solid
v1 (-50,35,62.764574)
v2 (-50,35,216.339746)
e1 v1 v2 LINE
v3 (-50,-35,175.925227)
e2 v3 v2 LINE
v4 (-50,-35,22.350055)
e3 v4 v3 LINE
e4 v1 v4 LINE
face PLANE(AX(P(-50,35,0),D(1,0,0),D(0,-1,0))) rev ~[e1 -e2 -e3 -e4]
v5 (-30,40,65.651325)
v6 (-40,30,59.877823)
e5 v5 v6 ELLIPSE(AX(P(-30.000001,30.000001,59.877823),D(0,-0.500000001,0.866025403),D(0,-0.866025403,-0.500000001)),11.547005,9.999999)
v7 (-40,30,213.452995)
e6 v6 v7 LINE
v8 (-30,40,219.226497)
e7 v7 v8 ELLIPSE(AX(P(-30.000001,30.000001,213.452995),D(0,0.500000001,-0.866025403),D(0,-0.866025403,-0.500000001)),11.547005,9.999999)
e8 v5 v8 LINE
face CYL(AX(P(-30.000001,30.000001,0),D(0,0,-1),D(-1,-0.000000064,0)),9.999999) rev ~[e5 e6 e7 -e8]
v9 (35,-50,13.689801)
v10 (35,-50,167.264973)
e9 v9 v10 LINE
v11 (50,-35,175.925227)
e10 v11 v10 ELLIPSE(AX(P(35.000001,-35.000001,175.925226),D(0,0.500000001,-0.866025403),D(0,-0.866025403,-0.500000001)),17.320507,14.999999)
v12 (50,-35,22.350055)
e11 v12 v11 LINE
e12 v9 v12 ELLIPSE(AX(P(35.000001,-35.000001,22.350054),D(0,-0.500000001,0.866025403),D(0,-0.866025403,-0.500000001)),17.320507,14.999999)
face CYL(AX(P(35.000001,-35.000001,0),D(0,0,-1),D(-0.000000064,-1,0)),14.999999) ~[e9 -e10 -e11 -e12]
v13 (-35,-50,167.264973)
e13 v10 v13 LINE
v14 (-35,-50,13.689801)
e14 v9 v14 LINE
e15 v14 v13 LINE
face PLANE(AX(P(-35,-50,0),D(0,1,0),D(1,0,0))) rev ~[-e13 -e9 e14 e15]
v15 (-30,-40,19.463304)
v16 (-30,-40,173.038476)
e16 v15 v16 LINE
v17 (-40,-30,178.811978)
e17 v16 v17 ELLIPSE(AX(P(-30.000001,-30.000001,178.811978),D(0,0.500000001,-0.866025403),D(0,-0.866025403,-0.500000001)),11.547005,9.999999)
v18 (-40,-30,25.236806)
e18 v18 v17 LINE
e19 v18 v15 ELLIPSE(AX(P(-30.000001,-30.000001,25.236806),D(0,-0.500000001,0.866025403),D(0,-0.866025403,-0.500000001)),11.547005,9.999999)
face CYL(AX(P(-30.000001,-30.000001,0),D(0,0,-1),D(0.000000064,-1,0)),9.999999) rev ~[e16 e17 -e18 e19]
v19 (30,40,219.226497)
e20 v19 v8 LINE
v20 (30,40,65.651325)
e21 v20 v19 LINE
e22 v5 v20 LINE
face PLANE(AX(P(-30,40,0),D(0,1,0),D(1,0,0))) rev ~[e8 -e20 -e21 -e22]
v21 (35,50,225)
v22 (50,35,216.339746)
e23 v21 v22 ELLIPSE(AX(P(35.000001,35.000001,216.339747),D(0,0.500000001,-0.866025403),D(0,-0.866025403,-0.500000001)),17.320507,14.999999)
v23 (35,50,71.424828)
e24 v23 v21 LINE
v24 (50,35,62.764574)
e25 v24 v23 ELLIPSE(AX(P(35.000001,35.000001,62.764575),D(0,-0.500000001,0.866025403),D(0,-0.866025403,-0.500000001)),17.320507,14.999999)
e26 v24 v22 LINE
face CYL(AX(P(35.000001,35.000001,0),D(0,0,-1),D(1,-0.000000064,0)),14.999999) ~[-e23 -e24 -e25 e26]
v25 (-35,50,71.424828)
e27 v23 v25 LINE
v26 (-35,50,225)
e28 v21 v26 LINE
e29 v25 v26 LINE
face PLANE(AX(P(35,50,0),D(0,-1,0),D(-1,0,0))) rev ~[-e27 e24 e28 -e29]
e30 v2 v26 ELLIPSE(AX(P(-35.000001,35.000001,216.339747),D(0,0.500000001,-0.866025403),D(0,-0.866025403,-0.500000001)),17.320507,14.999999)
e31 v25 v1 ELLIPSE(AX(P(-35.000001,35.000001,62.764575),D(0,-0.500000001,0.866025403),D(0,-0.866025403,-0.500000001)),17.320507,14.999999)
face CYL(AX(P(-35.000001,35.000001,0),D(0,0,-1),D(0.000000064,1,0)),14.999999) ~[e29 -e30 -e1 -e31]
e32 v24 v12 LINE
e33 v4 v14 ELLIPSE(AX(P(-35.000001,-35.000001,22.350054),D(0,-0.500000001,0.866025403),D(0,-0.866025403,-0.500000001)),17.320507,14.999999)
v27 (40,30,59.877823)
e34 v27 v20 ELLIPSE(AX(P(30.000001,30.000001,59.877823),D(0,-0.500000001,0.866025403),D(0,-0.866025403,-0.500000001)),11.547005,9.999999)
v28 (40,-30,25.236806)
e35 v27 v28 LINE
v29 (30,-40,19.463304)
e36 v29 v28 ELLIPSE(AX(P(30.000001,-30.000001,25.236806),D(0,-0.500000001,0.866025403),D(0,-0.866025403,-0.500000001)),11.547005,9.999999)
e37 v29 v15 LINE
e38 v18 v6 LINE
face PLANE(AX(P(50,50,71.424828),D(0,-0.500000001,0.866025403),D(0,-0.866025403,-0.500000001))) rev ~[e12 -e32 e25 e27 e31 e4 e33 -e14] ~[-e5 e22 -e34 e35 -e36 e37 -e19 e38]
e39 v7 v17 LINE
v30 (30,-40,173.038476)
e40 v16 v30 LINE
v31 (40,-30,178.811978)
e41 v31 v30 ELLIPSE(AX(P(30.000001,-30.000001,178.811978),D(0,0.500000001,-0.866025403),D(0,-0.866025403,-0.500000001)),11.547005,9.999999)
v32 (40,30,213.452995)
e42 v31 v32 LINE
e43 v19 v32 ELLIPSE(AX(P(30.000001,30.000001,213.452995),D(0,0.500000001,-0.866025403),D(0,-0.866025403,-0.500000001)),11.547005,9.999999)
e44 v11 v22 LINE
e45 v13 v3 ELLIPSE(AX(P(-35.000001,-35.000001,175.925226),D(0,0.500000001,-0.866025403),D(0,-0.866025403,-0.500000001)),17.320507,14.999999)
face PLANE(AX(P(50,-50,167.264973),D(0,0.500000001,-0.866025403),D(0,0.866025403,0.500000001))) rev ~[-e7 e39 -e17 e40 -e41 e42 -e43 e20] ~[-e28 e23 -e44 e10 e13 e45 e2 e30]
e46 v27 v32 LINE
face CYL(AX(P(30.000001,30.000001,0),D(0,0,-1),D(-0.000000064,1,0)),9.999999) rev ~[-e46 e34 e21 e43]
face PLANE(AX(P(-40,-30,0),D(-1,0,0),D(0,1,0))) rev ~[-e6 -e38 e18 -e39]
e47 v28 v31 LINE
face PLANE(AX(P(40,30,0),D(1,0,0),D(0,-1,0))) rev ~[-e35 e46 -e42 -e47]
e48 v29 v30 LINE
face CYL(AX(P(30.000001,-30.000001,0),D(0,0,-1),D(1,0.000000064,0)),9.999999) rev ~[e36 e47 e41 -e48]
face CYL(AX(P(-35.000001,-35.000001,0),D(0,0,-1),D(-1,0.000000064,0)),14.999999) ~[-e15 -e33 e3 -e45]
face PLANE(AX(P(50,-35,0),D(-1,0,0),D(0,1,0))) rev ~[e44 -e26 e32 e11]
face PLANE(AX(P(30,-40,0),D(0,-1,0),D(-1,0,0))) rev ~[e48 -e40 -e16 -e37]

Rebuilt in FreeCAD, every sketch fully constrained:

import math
import FreeCAD as App
import Part
import Sketcher

V = App.Vector
Q = App.Units.Quantity


def add_polygon(sketch, points):
    """Adds a closed chain of lines whose ends are joined by coincident constraints."""
    first, n = sketch.GeometryCount, len(points)
    for a, b in zip(points, points[1:] + points[:1]):
        sketch.addGeometry(Part.LineSegment(App.Vector(*a, 0), App.Vector(*b, 0)), False)
    for i in range(n):
        sketch.addConstraint(Sketcher.Constraint("Coincident", first + i, 2, first + (i + 1) % n, 1))

doc = App.newDocument("Part")
body = doc.addObject("PartDesign::Body", "Body")

sketch1 = doc.addObject("Sketcher::SketchObject", "Sketch")
body.addObject(sketch1)
sketch1.AttachmentSupport = (doc.XY_Plane, [""])
sketch1.MapMode = "FlatFace"
sketch1.addGeometry([
    Part.LineSegment(V(35, 50, 0), V(-35, 50, 0)),
    Part.ArcOfCircle(Part.Circle(V(-35, 35, 0), V(0, 0, 1), 15), math.radians(90), math.radians(180)),
    Part.LineSegment(V(-50, 35, 0), V(-50, -35, 0)),
    Part.ArcOfCircle(Part.Circle(V(-35, -35, 0), V(0, 0, 1), 15), math.radians(180), math.radians(270)),
    Part.LineSegment(V(-35, -50, 0), V(35, -50, 0)),
    Part.ArcOfCircle(Part.Circle(V(35, -35, 0), V(0, 0, 1), 15), math.radians(-90), math.radians(0)),
    Part.LineSegment(V(50, -35, 0), V(50, 35, 0)),
    Part.ArcOfCircle(Part.Circle(V(35, 35, 0), V(0, 0, 1), 15), math.radians(0), math.radians(90)),
    Part.LineSegment(V(-40, -30, 0), V(-40, 30, 0)),
    Part.ArcOfCircle(Part.Circle(V(-30, 30, 0), V(0, 0, 1), 10), math.radians(90), math.radians(180)),
    Part.LineSegment(V(-30, 40, 0), V(30, 40, 0)),
    Part.ArcOfCircle(Part.Circle(V(30, 30, 0), V(0, 0, 1), 10), math.radians(0), math.radians(90)),
    Part.LineSegment(V(40, 30, 0), V(40, -30, 0)),
    Part.ArcOfCircle(Part.Circle(V(30, -30, 0), V(0, 0, 1), 10), math.radians(-90), math.radians(0)),
    Part.LineSegment(V(30, -40, 0), V(-30, -40, 0)),
    Part.ArcOfCircle(Part.Circle(V(-30, -30, 0), V(0, 0, 1), 10), math.radians(180), math.radians(270)),
], False)
sketch1.addConstraint([
    Sketcher.Constraint("Tangent", 0, 2, 1, 1),
    Sketcher.Constraint("Tangent", 1, 2, 2, 1),
    Sketcher.Constraint("Tangent", 2, 2, 3, 1),
    Sketcher.Constraint("Tangent", 3, 2, 4, 1),
    Sketcher.Constraint("Tangent", 4, 2, 5, 1),
    Sketcher.Constraint("Tangent", 5, 2, 6, 1),
    Sketcher.Constraint("Tangent", 6, 2, 7, 1),
    Sketcher.Constraint("Tangent", 7, 2, 0, 1),
    Sketcher.Constraint("Tangent", 8, 2, 9, 2),
    Sketcher.Constraint("Tangent", 9, 1, 10, 1),
    Sketcher.Constraint("Tangent", 10, 2, 11, 2),
    Sketcher.Constraint("Tangent", 11, 1, 12, 1),
    Sketcher.Constraint("Tangent", 12, 2, 13, 2),
    Sketcher.Constraint("Tangent", 13, 1, 14, 1),
    Sketcher.Constraint("Tangent", 14, 2, 15, 2),
    Sketcher.Constraint("Tangent", 15, 1, 8, 1),
    Sketcher.Constraint("Horizontal", 0),
    Sketcher.Constraint("Vertical", 2),
    Sketcher.Constraint("Horizontal", 4),
    Sketcher.Constraint("Vertical", 6),
    Sketcher.Constraint("Vertical", 8),
    Sketcher.Constraint("Horizontal", 10),
    Sketcher.Constraint("Vertical", 12),
    Sketcher.Constraint("Horizontal", 14),
    Sketcher.Constraint("Equal", 1, 3),
    Sketcher.Constraint("Equal", 3, 5),
    Sketcher.Constraint("Equal", 5, 7),
    Sketcher.Constraint("Equal", 9, 11),
    Sketcher.Constraint("Equal", 11, 13),
    Sketcher.Constraint("Equal", 13, 15),
    Sketcher.Constraint("Symmetric", 1, 3, 5, 3, -1, 1),
    Sketcher.Constraint("Symmetric", 9, 3, 13, 3, -1, 1),
    Sketcher.Constraint("Equal", 4, 2),
    Sketcher.Constraint("Equal", 14, 8),
    Sketcher.Constraint("Radius", 1, Q("14.999999 mm")),
    Sketcher.Constraint("Radius", 9, Q("9.999999 mm")),
    Sketcher.Constraint("DistanceX", 0, 2, 0, 1, Q("70 mm")),
    Sketcher.Constraint("DistanceX", 10, 1, 10, 2, Q("60 mm")),
])
pad1 = doc.addObject("PartDesign::Pad", "Pad")
body.addObject(pad1)
pad1.Profile = sketch1
pad1.Length = 225

sketch2 = doc.addObject("Sketcher::SketchObject", "Sketch001")
body.addObject(sketch2)
sketch2.AttachmentSupport = (doc.YZ_Plane, [""])
sketch2.MapMode = "FlatFace"
sketch2.AttachmentOffset = App.Placement(V(0, 0, 50), App.Rotation())
add_polygon(sketch2, [(-50, 225), (-50, 167), (50, 225)])
add_polygon(sketch2, [(50, 71), (-50, 14), (-50, 0), (50, 0)])
sketch2.addConstraint([
    Sketcher.Constraint("Vertical", 0),
    Sketcher.Constraint("Horizontal", 2),
    Sketcher.Constraint("Vertical", 4),
    Sketcher.Constraint("Horizontal", 5),
    Sketcher.Constraint("Vertical", 6),
    Sketcher.Constraint("Symmetric", 4, 2, 5, 2, -1, 1),
    Sketcher.Constraint("Parallel", 1, 3),
    Sketcher.Constraint("Vertical", 2, 2, 3, 2),
    Sketcher.Constraint("Vertical", 1, 2, 5, 2),
    Sketcher.Constraint("DistanceX", 2, 2, 2, 1, Q("100 mm")),
    Sketcher.Constraint("Angle", 1, Q("30 deg")),
    Sketcher.Constraint("DistanceY", -1, 1, 1, 2, Q("225 mm")),
    Sketcher.Constraint("DistanceY", 4, 2, 4, 1, Q("13.689801 mm")),
])
pocket1 = doc.addObject("PartDesign::Pocket", "Pocket")
body.addObject(pocket1)
pocket1.Profile = sketch2
pocket1.Length = 100

doc.recompute()
